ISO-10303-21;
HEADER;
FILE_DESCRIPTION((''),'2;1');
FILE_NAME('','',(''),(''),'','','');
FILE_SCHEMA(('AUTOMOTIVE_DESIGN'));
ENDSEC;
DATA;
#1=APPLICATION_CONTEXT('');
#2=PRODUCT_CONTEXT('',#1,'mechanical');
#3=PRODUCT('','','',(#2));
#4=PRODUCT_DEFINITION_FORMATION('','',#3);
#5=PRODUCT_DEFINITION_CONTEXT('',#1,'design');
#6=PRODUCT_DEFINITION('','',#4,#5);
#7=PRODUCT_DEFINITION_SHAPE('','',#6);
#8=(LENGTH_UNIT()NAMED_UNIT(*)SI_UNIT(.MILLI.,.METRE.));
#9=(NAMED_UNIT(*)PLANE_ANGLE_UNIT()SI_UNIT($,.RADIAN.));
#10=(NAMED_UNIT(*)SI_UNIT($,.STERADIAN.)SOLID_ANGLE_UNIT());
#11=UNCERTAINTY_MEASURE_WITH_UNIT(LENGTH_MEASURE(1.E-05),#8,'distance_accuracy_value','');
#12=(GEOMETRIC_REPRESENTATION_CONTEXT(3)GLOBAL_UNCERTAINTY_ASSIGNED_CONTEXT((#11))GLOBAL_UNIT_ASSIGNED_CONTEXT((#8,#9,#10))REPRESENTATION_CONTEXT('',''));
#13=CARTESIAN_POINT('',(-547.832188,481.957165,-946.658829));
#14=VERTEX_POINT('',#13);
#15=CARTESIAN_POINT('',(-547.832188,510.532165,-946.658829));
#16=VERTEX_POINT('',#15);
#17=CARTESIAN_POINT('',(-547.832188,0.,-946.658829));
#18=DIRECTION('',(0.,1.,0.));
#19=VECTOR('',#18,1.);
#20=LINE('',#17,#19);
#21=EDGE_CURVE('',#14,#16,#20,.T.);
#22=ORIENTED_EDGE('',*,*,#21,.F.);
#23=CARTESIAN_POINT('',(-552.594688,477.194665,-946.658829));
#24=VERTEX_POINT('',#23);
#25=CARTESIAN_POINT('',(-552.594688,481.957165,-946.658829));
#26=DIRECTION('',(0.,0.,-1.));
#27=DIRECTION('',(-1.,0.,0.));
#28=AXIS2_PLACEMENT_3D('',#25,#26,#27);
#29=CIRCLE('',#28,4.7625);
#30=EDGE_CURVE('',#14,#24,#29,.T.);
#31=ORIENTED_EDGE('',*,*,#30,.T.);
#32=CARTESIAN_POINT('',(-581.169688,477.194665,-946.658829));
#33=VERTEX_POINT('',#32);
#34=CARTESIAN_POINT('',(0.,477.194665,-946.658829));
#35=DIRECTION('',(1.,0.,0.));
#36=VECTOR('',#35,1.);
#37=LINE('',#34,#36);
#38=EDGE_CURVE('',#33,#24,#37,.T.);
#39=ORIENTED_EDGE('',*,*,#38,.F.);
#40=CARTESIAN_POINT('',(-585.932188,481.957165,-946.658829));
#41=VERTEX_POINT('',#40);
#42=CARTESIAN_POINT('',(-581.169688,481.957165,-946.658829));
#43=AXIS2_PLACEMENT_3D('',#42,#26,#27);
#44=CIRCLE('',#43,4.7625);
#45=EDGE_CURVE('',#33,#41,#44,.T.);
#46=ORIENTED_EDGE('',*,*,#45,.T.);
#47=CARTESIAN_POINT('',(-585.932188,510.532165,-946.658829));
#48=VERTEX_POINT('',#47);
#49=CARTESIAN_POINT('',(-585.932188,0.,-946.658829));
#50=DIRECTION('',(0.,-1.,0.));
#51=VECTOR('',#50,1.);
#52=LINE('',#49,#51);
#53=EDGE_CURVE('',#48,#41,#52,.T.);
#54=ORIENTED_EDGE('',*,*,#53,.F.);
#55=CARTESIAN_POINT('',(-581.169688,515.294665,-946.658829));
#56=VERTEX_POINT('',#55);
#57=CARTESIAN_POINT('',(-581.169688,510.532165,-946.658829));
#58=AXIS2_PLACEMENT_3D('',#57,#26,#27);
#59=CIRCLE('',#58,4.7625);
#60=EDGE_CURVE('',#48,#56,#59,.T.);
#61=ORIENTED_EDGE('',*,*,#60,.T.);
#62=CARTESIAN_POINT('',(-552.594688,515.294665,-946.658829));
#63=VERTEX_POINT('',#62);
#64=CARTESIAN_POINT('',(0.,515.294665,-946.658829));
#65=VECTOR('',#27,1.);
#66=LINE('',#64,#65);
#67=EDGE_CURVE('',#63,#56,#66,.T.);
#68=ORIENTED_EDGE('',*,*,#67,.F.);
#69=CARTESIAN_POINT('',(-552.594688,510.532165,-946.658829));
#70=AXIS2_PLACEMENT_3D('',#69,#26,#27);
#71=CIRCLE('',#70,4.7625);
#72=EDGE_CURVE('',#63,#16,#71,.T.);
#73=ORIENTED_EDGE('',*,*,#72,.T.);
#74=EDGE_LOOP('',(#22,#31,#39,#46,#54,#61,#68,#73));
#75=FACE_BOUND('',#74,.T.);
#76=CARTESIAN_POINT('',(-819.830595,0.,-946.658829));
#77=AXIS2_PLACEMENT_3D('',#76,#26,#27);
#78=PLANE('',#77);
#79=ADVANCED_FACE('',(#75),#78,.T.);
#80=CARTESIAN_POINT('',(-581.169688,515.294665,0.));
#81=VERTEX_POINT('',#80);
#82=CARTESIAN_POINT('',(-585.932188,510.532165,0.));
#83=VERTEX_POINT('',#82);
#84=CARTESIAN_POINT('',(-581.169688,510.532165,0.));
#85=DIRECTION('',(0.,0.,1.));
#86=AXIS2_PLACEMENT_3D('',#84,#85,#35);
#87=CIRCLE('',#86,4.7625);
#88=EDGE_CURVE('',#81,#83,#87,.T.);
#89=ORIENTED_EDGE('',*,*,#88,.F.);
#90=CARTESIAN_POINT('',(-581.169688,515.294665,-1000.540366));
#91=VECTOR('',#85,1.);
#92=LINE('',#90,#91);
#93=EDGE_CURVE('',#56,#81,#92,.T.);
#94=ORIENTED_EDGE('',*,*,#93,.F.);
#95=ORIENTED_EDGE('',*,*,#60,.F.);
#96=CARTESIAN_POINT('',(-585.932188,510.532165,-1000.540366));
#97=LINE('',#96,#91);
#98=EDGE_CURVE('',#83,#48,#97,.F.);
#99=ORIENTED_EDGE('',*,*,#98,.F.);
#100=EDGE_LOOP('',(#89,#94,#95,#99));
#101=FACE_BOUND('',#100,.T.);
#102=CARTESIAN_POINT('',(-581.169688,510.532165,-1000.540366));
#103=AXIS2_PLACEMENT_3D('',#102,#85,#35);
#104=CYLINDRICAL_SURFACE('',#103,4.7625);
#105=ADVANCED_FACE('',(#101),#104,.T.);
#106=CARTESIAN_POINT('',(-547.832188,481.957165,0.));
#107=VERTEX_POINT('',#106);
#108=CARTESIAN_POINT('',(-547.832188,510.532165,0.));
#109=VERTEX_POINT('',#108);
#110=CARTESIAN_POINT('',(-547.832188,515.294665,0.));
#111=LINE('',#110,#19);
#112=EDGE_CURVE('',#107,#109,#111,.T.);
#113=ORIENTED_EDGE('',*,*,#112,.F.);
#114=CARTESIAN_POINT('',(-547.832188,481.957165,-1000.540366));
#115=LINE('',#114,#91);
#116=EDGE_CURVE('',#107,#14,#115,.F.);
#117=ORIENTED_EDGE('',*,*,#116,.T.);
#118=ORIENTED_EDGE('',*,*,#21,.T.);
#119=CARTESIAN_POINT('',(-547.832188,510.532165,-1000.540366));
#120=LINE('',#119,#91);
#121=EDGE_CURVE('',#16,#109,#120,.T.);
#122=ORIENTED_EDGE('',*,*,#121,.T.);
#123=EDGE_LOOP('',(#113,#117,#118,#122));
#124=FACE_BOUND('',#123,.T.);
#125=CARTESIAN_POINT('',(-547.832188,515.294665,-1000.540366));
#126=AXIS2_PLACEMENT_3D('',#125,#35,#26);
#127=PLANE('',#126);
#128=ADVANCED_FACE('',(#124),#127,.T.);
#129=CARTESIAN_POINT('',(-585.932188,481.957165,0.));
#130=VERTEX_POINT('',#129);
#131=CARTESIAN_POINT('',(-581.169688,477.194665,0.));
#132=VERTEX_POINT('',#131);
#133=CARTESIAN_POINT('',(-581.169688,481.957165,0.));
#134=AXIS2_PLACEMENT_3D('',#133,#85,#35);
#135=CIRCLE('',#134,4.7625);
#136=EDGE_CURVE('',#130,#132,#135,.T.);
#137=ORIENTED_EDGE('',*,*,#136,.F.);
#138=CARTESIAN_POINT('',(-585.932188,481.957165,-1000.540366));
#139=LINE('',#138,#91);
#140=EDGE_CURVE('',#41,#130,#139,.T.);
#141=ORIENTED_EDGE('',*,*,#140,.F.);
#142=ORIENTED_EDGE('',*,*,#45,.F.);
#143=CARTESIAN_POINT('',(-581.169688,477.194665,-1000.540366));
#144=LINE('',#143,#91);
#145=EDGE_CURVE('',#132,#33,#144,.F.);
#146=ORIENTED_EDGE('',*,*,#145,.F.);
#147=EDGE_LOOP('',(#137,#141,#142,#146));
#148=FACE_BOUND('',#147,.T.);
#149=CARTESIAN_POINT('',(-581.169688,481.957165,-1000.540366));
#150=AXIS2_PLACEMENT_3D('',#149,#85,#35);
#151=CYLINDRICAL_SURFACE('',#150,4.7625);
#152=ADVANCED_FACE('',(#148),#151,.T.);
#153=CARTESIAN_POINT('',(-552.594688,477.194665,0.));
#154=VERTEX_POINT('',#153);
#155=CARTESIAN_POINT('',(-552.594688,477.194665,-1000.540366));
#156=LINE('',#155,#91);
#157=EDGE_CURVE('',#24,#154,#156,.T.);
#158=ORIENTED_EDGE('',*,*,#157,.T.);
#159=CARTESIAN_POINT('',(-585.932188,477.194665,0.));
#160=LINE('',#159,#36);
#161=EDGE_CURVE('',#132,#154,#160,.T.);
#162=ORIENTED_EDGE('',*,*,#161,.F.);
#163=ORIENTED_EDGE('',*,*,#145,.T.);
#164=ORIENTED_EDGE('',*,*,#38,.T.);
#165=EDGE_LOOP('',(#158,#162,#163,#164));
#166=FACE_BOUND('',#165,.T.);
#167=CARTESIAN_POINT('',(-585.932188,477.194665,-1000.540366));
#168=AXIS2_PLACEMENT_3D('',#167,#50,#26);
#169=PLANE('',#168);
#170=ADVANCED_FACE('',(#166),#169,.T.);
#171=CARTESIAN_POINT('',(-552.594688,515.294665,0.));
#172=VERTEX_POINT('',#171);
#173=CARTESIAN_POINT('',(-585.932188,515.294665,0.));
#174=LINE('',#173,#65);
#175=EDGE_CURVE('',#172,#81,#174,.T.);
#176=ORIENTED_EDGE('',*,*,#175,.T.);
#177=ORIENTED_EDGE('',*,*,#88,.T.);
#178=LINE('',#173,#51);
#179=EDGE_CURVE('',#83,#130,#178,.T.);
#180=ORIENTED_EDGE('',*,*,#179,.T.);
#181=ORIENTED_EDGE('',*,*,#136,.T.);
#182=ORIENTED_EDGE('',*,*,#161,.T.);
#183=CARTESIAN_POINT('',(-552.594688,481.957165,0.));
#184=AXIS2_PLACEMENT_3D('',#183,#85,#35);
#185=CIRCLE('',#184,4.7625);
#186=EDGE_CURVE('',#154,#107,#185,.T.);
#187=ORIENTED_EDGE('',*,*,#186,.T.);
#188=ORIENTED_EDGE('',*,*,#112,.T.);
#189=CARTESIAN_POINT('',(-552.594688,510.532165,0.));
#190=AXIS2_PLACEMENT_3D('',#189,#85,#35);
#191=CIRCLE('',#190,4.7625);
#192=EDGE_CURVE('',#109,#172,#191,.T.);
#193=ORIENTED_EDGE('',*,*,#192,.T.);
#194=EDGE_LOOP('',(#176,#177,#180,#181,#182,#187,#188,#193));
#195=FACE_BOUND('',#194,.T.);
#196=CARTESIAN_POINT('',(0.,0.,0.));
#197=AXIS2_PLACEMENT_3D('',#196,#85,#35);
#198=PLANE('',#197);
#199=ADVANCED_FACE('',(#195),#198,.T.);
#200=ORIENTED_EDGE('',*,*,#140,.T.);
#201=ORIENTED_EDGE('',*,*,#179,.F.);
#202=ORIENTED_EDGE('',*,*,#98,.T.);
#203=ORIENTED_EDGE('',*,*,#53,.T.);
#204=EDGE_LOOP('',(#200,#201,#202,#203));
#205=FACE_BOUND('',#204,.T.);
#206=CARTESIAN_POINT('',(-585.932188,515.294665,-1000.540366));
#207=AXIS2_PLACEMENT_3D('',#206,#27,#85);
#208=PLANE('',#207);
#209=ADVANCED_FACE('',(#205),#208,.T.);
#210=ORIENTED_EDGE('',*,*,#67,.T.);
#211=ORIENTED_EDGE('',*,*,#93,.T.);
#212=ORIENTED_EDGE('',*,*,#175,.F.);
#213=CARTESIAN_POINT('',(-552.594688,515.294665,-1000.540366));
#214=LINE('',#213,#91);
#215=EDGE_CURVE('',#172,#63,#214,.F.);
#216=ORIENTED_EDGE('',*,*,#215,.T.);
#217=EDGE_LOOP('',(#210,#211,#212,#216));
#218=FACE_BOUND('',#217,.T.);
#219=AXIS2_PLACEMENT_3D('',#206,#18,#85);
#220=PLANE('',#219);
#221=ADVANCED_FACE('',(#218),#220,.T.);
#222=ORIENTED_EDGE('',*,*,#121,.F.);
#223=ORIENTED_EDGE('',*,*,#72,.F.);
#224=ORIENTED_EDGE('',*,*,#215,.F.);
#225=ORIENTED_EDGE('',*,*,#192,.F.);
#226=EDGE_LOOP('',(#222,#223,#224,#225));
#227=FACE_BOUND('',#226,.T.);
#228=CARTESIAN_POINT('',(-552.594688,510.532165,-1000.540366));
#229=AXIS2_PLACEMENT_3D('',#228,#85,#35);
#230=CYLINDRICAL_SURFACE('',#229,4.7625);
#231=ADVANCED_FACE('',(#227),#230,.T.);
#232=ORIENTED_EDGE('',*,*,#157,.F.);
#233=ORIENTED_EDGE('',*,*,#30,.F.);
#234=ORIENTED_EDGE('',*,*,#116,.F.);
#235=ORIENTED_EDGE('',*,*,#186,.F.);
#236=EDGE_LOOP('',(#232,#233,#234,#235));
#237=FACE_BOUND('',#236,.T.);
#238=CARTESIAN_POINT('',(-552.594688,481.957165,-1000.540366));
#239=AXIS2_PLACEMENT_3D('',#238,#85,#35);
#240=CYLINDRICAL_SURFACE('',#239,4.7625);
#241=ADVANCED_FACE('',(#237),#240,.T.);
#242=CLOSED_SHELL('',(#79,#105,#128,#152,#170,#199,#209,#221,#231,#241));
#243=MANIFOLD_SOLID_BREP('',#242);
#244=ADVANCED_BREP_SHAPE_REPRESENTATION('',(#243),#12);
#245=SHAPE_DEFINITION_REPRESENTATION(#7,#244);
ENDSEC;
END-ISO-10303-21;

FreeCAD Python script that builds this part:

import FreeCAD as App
import Part
import Sketcher
Q = App.Units.Quantity


def edges_at(feature, points):
    """Names of the edges that pass closest to the given points."""
    edges = feature.Shape.Edges
    near = lambda p: min(range(len(edges)), key=lambda i: edges[i].distToShape(Part.Vertex(*p))[0])
    return sorted({f"Edge{near(p) + 1}" for p in points})


def add_polygon(sketch, points):
    """Adds a closed chain of lines whose ends are joined by coincident constraints."""
    first, n = sketch.GeometryCount, len(points)
    for a, b in zip(points, points[1:] + points[:1]):
        sketch.addGeometry(Part.LineSegment(App.Vector(*a, 0), App.Vector(*b, 0)), False)
    for i in range(n):
        sketch.addConstraint(Sketcher.Constraint("Coincident", first + i, 2, first + (i + 1) % n, 1))

doc = App.newDocument("Part")
body = doc.addObject("PartDesign::Body", "Body")

# Sketch on XY plane
sketch1 = body.newObject("Sketcher::SketchObject", "Sketch")
sketch1.AttachmentSupport = (doc.getObject("XY_Plane"), [""])
sketch1.MapMode = "FlatFace"
add_polygon(sketch1, [(-586, 515), (-586, 477), (-548, 477), (-548, 515)])  # lines 0-3
sketch1.addConstraint([
    Sketcher.Constraint("Vertical", 0),
    Sketcher.Constraint("Horizontal", 1),
    Sketcher.Constraint("Vertical", 2),
    Sketcher.Constraint("Horizontal", 3),
    Sketcher.Constraint("Equal", 3, 0),
    Sketcher.Constraint("DistanceX", 1, 1, 1, 2, Q("1.5 in")),
    Sketcher.Constraint("DistanceX", 0, 2, -1, 1, Q("585.932188 mm")),
    Sketcher.Constraint("DistanceY", -1, 1, 0, 2, Q("477.194665 mm")),
])
pad1 = body.newObject("PartDesign::Pad", "Pad")
pad1.Profile = sketch1
pad1.Length = 946.658829
pad1.Reversed = True
doc.recompute()

fillet = body.newObject("PartDesign::Fillet", "Fillet")
fillet.Base = (pad1, edges_at(pad1, [
    (-547.832, 477.195, -473.329),
    (-547.832, 515.295, -473.329),
    (-585.932, 515.295, -473.329),
    (-585.932, 477.195, -473.329),
]))
fillet.Radius = Q("0.1875 in")

doc.recompute()
